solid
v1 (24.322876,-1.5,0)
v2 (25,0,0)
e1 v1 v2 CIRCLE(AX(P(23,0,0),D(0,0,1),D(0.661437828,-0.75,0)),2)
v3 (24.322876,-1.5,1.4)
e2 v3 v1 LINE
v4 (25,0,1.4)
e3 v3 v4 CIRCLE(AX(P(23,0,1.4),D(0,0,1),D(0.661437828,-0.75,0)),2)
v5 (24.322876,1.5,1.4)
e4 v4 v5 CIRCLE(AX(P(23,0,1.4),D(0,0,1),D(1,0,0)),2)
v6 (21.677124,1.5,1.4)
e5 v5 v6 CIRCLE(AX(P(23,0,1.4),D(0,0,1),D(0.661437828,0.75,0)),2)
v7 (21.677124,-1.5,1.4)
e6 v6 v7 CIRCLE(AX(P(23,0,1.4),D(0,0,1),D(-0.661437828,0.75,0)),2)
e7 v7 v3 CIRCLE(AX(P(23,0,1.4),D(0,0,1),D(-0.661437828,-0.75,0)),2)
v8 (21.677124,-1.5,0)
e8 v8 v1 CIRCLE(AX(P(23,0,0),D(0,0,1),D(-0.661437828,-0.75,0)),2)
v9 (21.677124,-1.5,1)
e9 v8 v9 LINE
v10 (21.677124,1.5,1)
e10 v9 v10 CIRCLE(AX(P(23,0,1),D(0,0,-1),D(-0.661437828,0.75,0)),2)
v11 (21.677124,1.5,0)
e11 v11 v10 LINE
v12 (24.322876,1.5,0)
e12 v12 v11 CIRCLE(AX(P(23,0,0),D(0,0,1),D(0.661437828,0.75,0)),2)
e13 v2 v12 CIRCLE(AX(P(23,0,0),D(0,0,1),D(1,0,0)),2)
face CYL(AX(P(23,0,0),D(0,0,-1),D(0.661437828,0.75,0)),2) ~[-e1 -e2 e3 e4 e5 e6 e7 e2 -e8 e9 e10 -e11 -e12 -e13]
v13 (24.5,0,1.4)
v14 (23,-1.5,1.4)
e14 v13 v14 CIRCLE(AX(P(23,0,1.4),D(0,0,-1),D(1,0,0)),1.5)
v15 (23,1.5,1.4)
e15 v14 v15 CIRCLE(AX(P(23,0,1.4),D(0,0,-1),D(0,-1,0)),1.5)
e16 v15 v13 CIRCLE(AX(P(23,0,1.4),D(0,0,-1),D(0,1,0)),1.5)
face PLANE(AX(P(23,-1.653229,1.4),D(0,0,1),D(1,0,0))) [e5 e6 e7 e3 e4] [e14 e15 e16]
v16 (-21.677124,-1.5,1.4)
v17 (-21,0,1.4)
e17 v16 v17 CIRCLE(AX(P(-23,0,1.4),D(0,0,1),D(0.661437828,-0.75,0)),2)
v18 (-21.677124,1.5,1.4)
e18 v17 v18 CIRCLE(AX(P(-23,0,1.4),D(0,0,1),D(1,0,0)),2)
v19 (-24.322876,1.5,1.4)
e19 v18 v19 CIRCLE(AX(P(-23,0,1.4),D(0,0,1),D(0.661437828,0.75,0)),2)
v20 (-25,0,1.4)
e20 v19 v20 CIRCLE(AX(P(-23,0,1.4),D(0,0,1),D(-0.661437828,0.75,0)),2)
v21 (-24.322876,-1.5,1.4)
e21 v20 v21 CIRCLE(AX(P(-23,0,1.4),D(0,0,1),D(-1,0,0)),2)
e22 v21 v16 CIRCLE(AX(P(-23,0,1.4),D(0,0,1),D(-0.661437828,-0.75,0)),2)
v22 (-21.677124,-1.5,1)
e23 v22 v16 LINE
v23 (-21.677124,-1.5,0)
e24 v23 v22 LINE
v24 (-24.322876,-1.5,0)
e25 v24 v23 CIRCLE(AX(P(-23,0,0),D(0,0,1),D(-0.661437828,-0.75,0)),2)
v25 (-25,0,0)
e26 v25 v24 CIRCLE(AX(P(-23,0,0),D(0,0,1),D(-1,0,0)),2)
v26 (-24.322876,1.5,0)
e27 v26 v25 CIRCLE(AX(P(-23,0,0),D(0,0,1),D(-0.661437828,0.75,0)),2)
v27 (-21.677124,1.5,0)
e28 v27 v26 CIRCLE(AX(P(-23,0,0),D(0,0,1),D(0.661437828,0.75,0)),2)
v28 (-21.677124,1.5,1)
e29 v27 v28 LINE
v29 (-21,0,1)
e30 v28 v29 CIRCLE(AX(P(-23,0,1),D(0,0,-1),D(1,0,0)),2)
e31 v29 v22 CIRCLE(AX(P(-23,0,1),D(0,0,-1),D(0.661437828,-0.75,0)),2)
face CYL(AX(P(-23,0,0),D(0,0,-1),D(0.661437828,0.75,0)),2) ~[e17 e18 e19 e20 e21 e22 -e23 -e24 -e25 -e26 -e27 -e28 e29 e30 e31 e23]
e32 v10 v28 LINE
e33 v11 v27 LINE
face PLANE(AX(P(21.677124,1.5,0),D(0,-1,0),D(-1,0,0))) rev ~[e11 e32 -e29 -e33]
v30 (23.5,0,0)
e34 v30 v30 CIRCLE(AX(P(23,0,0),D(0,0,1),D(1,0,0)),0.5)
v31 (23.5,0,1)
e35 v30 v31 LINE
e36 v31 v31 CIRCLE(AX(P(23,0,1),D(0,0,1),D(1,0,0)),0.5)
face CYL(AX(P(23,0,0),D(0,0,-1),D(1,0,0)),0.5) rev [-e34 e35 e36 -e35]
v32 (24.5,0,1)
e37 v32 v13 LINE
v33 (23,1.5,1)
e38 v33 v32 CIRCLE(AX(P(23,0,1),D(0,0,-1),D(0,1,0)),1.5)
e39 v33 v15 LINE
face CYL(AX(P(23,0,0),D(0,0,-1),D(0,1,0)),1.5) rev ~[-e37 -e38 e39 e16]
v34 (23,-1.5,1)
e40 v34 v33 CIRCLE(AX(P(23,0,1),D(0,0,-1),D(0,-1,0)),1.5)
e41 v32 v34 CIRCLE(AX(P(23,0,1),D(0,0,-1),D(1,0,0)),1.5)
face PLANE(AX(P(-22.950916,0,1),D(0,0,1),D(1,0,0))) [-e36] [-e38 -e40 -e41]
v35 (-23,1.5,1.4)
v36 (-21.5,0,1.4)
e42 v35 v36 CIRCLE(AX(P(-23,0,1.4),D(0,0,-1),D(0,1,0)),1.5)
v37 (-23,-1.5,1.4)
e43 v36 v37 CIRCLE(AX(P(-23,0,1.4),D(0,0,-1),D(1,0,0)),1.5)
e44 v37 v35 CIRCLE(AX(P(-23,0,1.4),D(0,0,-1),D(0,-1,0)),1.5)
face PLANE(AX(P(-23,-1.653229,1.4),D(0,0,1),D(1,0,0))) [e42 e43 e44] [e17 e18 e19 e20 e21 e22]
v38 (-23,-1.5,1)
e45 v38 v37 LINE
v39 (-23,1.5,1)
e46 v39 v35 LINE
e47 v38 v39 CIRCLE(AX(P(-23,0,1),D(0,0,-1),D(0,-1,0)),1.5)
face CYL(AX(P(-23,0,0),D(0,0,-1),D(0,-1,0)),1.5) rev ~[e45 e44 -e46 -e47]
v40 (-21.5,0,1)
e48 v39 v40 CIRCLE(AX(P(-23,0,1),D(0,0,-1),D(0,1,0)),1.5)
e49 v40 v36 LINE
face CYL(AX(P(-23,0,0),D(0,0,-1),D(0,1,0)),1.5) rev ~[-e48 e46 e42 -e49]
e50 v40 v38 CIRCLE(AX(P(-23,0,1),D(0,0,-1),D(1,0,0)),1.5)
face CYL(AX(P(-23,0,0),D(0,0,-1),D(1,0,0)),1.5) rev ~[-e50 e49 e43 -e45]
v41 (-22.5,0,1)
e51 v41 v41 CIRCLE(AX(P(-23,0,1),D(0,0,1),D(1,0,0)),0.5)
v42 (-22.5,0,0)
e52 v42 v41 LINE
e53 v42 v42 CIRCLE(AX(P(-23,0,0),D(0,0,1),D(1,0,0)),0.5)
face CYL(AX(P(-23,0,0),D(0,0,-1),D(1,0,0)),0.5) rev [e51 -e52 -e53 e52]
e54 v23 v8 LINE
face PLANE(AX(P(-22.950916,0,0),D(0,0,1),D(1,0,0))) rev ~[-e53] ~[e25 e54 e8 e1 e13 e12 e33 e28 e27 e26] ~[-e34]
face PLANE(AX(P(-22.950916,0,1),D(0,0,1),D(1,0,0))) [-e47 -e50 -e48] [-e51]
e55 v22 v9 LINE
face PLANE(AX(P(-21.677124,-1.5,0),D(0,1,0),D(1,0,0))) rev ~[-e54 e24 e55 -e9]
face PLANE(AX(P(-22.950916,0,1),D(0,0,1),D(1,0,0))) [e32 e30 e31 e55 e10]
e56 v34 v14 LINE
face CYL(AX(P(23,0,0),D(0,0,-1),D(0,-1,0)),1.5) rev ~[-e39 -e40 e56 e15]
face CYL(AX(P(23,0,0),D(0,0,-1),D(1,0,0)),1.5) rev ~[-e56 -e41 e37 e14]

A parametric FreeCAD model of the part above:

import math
import FreeCAD as App
import Part
import Sketcher
from FreeCAD import Vector

doc = App.newDocument("Part")
body = doc.addObject("PartDesign::Body", "Body")

# Sketch on XY plane
sketch1 = body.newObject("Sketcher::SketchObject", "Sketch")
sketch1.AttachmentSupport = (doc.getObject("XY_Plane"), [""])
sketch1.MapMode = "FlatFace"
sketch1.addGeometry(Part.ArcOfCircle(Part.Circle(Vector(-23, 0, 0), Vector(0, 0, 1), 2), math.radians(49), math.radians(131)), False)
sketch1.addGeometry(Part.ArcOfCircle(Part.Circle(Vector(-23, 0, 0), Vector(0, 0, 1), 2), math.radians(131), math.radians(180)), False)
sketch1.addGeometry(Part.ArcOfCircle(Part.Circle(Vector(-23, 0, 0), Vector(0, 0, 1), 2), math.radians(180), math.radians(229)), False)
sketch1.addGeometry(Part.ArcOfCircle(Part.Circle(Vector(-23, 0, 0), Vector(0, 0, 1), 2), math.radians(-131), math.radians(-49)), False)
sketch1.addGeometry(Part.LineSegment(Vector(-21.7, -1.5, 0), Vector(21.7, -1.5, 0)), False)
sketch1.addGeometry(Part.ArcOfCircle(Part.Circle(Vector(23, 0, 0), Vector(0, 0, 1), 2), math.radians(-131), math.radians(-49)), False)
sketch1.addGeometry(Part.ArcOfCircle(Part.Circle(Vector(23, 0, 0), Vector(0, 0, 1), 2), math.radians(-49), math.radians(0)), False)
sketch1.addGeometry(Part.ArcOfCircle(Part.Circle(Vector(23, 0, 0), Vector(0, 0, 1), 2), math.radians(0), math.radians(49)), False)
sketch1.addGeometry(Part.ArcOfCircle(Part.Circle(Vector(23, 0, 0), Vector(0, 0, 1), 2), math.radians(49), math.radians(131)), False)
sketch1.addGeometry(Part.LineSegment(Vector(21.7, 1.5, 0), Vector(-21.7, 1.5, 0)), False)
sketch1.addGeometry(Part.Circle(Vector(-23, 0, 0), Vector(0, 0, 1), 0.5), False)
sketch1.addGeometry(Part.Circle(Vector(23, 0, 0), Vector(0, 0, 1), 0.5), False)
sketch1.addConstraint(Sketcher.Constraint("Tangent", 0, 2, 1, 1))
sketch1.addConstraint(Sketcher.Constraint("Tangent", 1, 2, 2, 1))
sketch1.addConstraint(Sketcher.Constraint("Tangent", 2, 2, 3, 1))
sketch1.addConstraint(Sketcher.Constraint("Coincident", 3, 2, 4, 1))
sketch1.addConstraint(Sketcher.Constraint("Coincident", 4, 2, 5, 1))
sketch1.addConstraint(Sketcher.Constraint("Tangent", 5, 2, 6, 1))
sketch1.addConstraint(Sketcher.Constraint("Tangent", 6, 2, 7, 1))
sketch1.addConstraint(Sketcher.Constraint("Tangent", 7, 2, 8, 1))
sketch1.addConstraint(Sketcher.Constraint("Coincident", 8, 2, 9, 1))
sketch1.addConstraint(Sketcher.Constraint("Coincident", 9, 2, 0, 1))
sketch1.addConstraint(Sketcher.Constraint("Horizontal", 4))
sketch1.addConstraint(Sketcher.Constraint("Horizontal", 9))
sketch1.addConstraint(Sketcher.Constraint("Coincident", 2, 3, 0, 3))
sketch1.addConstraint(Sketcher.Constraint("Coincident", 7, 3, 5, 3))
sketch1.addConstraint(Sketcher.Constraint("Coincident", 10, 3, 0, 3))
sketch1.addConstraint(Sketcher.Constraint("Coincident", 11, 3, 5, 3))
sketch1.addConstraint(Sketcher.Constraint("Equal", 2, 3))
sketch1.addConstraint(Sketcher.Constraint("Equal", 3, 5))
sketch1.addConstraint(Sketcher.Constraint("Equal", 7, 8))
sketch1.addConstraint(Sketcher.Constraint("Equal", 10, 11))
sketch1.addConstraint(Sketcher.Constraint("Symmetric", 0, 3, 5, 3, -1, 1))
sketch1.addConstraint(Sketcher.Constraint("Symmetric", 2, 2, 5, 2, -2))
sketch1.addConstraint(Sketcher.Constraint("PointOnObject", 1, 2, -1))
sketch1.addConstraint(Sketcher.Constraint("PointOnObject", 6, 2, -1))
sketch1.addConstraint(Sketcher.Constraint("Horizontal", 2, 2, 3, 2))
sketch1.addConstraint(Sketcher.Constraint("Horizontal", 0, 2, 7, 2))
sketch1.addConstraint(Sketcher.Constraint("Horizontal", 7, 2, 8, 2))
sketch1.addConstraint(Sketcher.Constraint("Vertical", 0, 2, 2, 2))
sketch1.addConstraint(Sketcher.Constraint("Diameter", 10, 1.0))
sketch1.addConstraint(Sketcher.Constraint("Radius", 0, 2.0))
sketch1.addConstraint(Sketcher.Constraint("DistanceX", 0, 3, -1, 1, 23.0))
sketch1.addConstraint(Sketcher.Constraint("DistanceY", -1, 1, 0, 2, 1.5))
pad1 = body.newObject("PartDesign::Pad", "Pad")
pad1.Profile = sketch1
pad1.Length = 1

# Sketch on XY plane
sketch2 = body.newObject("Sketcher::SketchObject", "Sketch001")
sketch2.AttachmentSupport = (doc.getObject("XY_Plane"), [""])
sketch2.MapMode = "FlatFace"
sketch2.addGeometry(Part.ArcOfCircle(Part.Circle(Vector(-23, 0, 0), Vector(0, 0, 1), 2), math.radians(0), math.radians(49)), False)
sketch2.addGeometry(Part.ArcOfCircle(Part.Circle(Vector(-23, 0, 0), Vector(0, 0, 1), 2), math.radians(49), math.radians(131)), False)
sketch2.addGeometry(Part.ArcOfCircle(Part.Circle(Vector(-23, 0, 0), Vector(0, 0, 1), 2), math.radians(131), math.radians(180)), False)
sketch2.addGeometry(Part.ArcOfCircle(Part.Circle(Vector(-23, 0, 0), Vector(0, 0, 1), 2), math.radians(180), math.radians(229)), False)
sketch2.addGeometry(Part.ArcOfCircle(Part.Circle(Vector(-23, 0, 0), Vector(0, 0, 1), 2), math.radians(-131), math.radians(-49)), False)
sketch2.addGeometry(Part.ArcOfCircle(Part.Circle(Vector(-23, 0, 0), Vector(0, 0, 1), 2), math.radians(-49), math.radians(0)), False)
sketch2.addGeometry(Part.ArcOfCircle(Part.Circle(Vector(-23, 0, 0), Vector(0, 0, 1), 1.5), math.radians(90), math.radians(270)), False)
sketch2.addGeometry(Part.ArcOfCircle(Part.Circle(Vector(-23, 0, 0), Vector(0, 0, 1), 1.5), math.radians(0), math.radians(90)), False)
sketch2.addGeometry(Part.ArcOfCircle(Part.Circle(Vector(-23, 0, 0), Vector(0, 0, 1), 1.5), math.radians(-90), math.radians(0)), False)
sketch2.addGeometry(Part.ArcOfCircle(Part.Circle(Vector(23, 0, 0), Vector(0, 0, 1), 2), math.radians(-131), math.radians(-49)), False)
sketch2.addGeometry(Part.ArcOfCircle(Part.Circle(Vector(23, 0, 0), Vector(0, 0, 1), 2), math.radians(-49), math.radians(0)), False)
sketch2.addGeometry(Part.ArcOfCircle(Part.Circle(Vector(23, 0, 0), Vector(0, 0, 1), 2), math.radians(0), math.radians(49)), False)
sketch2.addGeometry(Part.ArcOfCircle(Part.Circle(Vector(23, 0, 0), Vector(0, 0, 1), 2), math.radians(49), math.radians(131)), False)
sketch2.addGeometry(Part.ArcOfCircle(Part.Circle(Vector(23, 0, 0), Vector(0, 0, 1), 2), math.radians(131), math.radians(229)), False)
sketch2.addGeometry(Part.ArcOfCircle(Part.Circle(Vector(23, 0, 0), Vector(0, 0, 1), 1.5), math.radians(0), math.radians(90)), False)
sketch2.addGeometry(Part.ArcOfCircle(Part.Circle(Vector(23, 0, 0), Vector(0, 0, 1), 1.5), math.radians(-90), math.radians(0)), False)
sketch2.addGeometry(Part.ArcOfCircle(Part.Circle(Vector(23, 0, 0), Vector(0, 0, 1), 1.5), math.radians(90), math.radians(270)), False)
sketch2.addConstraint(Sketcher.Constraint("Tangent", 0, 2, 1, 1))
sketch2.addConstraint(Sketcher.Constraint("Tangent", 1, 2, 2, 1))
sketch2.addConstraint(Sketcher.Constraint("Tangent", 2, 2, 3, 1))
sketch2.addConstraint(Sketcher.Constraint("Tangent", 3, 2, 4, 1))
sketch2.addConstraint(Sketcher.Constraint("Tangent", 4, 2, 5, 1))
sketch2.addConstraint(Sketcher.Constraint("Tangent", 5, 2, 0, 1))
sketch2.addConstraint(Sketcher.Constraint("Tangent", 6, 1, 7, 2))
sketch2.addConstraint(Sketcher.Constraint("Tangent", 7, 1, 8, 2))
sketch2.addConstraint(Sketcher.Constraint("Tangent", 8, 1, 6, 2))
sketch2.addConstraint(Sketcher.Constraint("Tangent", 9, 2, 10, 1))
sketch2.addConstraint(Sketcher.Constraint("Tangent", 10, 2, 11, 1))
sketch2.addConstraint(Sketcher.Constraint("Tangent", 11, 2, 12, 1))
sketch2.addConstraint(Sketcher.Constraint("Tangent", 12, 2, 13, 1))
sketch2.addConstraint(Sketcher.Constraint("Tangent", 13, 2, 9, 1))
sketch2.addConstraint(Sketcher.Constraint("Tangent", 14, 1, 15, 2))
sketch2.addConstraint(Sketcher.Constraint("Tangent", 15, 1, 16, 2))
sketch2.addConstraint(Sketcher.Constraint("Tangent", 16, 1, 14, 2))
sketch2.addConstraint(Sketcher.Constraint("Coincident", 2, 3, 0, 3))
sketch2.addConstraint(Sketcher.Constraint("Coincident", 6, 3, 0, 3))
sketch2.addConstraint(Sketcher.Constraint("Coincident", 11, 3, 9, 3))
sketch2.addConstraint(Sketcher.Constraint("Coincident", 14, 3, 9, 3))
sketch2.addConstraint(Sketcher.Constraint("Equal", 2, 3))
sketch2.addConstraint(Sketcher.Constraint("Equal", 5, 9))
sketch2.addConstraint(Sketcher.Constraint("Equal", 8, 14))
sketch2.addConstraint(Sketcher.Constraint("Symmetric", 0, 3, 9, 3, -1, 1))
sketch2.addConstraint(Sketcher.Constraint("Symmetric", 3, 2, 9, 2, -2))
sketch2.addConstraint(Sketcher.Constraint("PointOnObject", 2, 2, -1))
sketch2.addConstraint(Sketcher.Constraint("PointOnObject", 5, 2, -1))
sketch2.addConstraint(Sketcher.Constraint("PointOnObject", 7, 1, -1))
sketch2.addConstraint(Sketcher.Constraint("PointOnObject", 10, 2, -1))
sketch2.addConstraint(Sketcher.Constraint("PointOnObject", 14, 1, -1))
sketch2.addConstraint(Sketcher.Constraint("Horizontal", 0, 2, 1, 2))
sketch2.addConstraint(Sketcher.Constraint("Horizontal", 3, 2, 4, 2))
sketch2.addConstraint(Sketcher.Constraint("Horizontal", 1, 2, 6, 1))
sketch2.addConstraint(Sketcher.Constraint("Horizontal", 4, 2, 8, 1))
sketch2.addConstraint(Sketcher.Constraint("Horizontal", 6, 1, 11, 2))
sketch2.addConstraint(Sketcher.Constraint("Horizontal", 11, 2, 12, 2))
sketch2.addConstraint(Sketcher.Constraint("Horizontal", 9, 2, 13, 2))
sketch2.addConstraint(Sketcher.Constraint("Vertical", 8, 3, 6, 1))
sketch2.addConstraint(Sketcher.Constraint("Vertical", 6, 1, 8, 1))
sketch2.addConstraint(Sketcher.Constraint("Vertical", 16, 3, 15, 1))
sketch2.addConstraint(Sketcher.Constraint("Vertical", 15, 1, 16, 1))
sketch2.addConstraint(Sketcher.Constraint("Radius", 0, 2.0))
sketch2.addConstraint(Sketcher.Constraint("Radius", 6, 1.5))
sketch2.addConstraint(Sketcher.Constraint("DistanceX", 0, 3, -1, 1, 23.0))
pad2 = body.newObject("PartDesign::Pad", "Pad001")
pad2.Profile = sketch2
pad2.Length = 1.4

doc.recompute()
